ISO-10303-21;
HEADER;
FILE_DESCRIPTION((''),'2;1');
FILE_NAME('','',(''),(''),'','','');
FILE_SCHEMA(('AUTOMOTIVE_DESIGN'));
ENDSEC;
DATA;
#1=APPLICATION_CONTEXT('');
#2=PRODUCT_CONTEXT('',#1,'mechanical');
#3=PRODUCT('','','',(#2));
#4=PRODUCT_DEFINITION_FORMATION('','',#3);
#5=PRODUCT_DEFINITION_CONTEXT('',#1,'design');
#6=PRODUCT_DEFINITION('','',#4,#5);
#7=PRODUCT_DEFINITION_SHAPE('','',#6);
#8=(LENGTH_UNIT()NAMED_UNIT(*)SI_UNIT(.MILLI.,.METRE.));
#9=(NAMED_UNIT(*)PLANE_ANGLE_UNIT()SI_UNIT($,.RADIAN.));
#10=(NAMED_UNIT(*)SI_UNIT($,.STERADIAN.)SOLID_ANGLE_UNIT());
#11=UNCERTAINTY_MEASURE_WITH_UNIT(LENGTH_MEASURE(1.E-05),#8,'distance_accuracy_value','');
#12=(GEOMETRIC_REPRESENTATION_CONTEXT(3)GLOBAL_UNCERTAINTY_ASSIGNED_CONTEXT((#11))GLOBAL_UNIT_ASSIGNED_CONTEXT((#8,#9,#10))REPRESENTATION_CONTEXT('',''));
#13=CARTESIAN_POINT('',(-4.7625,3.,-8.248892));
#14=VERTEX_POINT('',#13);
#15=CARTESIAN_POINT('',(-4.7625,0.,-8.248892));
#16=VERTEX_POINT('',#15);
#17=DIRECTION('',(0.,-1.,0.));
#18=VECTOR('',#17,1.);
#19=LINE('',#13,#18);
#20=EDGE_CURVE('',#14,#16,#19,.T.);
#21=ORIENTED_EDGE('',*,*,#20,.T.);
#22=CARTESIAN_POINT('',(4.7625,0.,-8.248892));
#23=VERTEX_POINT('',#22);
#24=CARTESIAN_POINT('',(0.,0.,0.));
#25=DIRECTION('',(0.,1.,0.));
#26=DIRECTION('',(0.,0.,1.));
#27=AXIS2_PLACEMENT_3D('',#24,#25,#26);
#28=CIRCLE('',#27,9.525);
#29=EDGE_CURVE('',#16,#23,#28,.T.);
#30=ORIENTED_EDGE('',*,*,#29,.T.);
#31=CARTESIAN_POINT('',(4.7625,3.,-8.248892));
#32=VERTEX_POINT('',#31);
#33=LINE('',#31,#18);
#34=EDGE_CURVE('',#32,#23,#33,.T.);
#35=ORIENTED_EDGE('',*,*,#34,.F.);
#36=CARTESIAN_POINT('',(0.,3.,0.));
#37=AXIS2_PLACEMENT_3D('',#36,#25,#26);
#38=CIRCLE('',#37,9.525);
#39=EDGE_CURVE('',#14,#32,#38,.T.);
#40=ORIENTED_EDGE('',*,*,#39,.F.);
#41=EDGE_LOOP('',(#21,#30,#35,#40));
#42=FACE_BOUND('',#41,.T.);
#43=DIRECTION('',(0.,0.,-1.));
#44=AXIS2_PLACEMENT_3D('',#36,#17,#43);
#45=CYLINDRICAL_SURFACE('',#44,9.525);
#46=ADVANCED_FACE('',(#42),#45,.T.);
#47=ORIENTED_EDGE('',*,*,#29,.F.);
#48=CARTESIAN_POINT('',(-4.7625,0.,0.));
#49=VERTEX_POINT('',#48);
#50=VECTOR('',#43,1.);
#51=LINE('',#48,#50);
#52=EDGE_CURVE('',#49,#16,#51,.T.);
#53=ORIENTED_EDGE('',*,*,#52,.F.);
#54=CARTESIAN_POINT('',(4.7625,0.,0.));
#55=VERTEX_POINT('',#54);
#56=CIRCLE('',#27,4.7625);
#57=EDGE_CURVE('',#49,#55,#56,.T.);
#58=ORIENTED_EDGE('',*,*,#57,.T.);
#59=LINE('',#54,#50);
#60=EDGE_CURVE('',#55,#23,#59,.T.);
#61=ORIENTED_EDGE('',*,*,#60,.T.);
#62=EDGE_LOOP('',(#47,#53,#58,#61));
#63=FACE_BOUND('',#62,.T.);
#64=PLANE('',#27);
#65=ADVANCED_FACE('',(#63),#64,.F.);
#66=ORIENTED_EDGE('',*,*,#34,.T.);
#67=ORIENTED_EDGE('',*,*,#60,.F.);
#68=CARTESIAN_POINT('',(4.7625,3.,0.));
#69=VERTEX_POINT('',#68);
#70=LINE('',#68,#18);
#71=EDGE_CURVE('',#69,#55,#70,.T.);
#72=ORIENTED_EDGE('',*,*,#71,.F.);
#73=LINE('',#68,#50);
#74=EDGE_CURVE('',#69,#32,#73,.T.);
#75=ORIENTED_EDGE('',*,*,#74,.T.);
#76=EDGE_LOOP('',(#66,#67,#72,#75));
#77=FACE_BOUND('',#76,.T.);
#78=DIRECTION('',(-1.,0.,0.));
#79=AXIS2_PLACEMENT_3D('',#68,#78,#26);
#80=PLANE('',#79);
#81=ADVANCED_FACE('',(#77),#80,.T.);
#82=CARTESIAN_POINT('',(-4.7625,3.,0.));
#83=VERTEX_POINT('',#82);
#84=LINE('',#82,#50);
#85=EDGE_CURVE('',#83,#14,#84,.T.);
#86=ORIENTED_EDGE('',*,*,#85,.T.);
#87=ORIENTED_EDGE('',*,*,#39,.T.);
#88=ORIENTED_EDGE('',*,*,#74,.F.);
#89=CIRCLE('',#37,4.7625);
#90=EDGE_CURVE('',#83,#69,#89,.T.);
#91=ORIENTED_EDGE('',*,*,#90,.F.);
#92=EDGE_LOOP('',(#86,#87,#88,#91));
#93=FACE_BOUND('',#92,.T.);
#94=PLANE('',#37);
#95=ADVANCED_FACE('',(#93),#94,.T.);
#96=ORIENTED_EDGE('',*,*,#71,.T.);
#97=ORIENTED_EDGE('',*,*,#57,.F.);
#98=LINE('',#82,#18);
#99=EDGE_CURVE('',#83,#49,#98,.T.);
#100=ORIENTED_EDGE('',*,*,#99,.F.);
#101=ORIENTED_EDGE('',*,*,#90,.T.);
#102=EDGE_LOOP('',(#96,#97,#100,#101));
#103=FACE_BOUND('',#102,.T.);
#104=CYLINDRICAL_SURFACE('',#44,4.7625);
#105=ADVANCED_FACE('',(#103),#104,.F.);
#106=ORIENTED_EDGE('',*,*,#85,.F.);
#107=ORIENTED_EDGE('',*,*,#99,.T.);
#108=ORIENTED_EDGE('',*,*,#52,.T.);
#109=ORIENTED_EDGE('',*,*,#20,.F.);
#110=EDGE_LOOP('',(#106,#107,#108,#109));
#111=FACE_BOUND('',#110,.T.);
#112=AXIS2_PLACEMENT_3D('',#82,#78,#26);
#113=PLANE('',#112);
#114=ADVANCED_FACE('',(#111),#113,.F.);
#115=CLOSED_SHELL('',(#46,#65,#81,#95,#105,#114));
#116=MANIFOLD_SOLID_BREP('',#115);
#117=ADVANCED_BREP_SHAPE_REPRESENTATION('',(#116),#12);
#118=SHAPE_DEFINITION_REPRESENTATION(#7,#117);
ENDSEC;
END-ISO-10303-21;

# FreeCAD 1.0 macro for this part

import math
import FreeCAD as App
import Part
import Sketcher
from FreeCAD import Vector
Q = App.Units.Quantity

doc = App.newDocument("Part")
body = doc.addObject("PartDesign::Body", "Body")

# Sketch on XZ plane
sketch1 = body.newObject("Sketcher::SketchObject", "Sketch")
sketch1.AttachmentSupport = (doc.getObject("XZ_Plane"), [""])
sketch1.MapMode = "FlatFace"
sketch1.addGeometry(Part.ArcOfCircle(Part.Circle(Vector(0, 0, 0), Vector(0, 0, 1), 4.8), math.radians(0), math.radians(180)), False)
sketch1.addGeometry(Part.LineSegment(Vector(-4.8, 0, 0), Vector(-4.8, -8.2, 0)), False)
sketch1.addGeometry(Part.ArcOfCircle(Part.Circle(Vector(0, 0, 0), Vector(0, 0, 1), 9.5), math.radians(0), math.radians(240)), False)
sketch1.addGeometry(Part.ArcOfCircle(Part.Circle(Vector(0, 0, 0), Vector(0, 0, 1), 9.5), math.radians(-60), math.radians(0)), False)
sketch1.addGeometry(Part.LineSegment(Vector(4.8, -8.2, 0), Vector(4.8, 0, 0)), False)
sketch1.addConstraint(Sketcher.Constraint("Tangent", 0, 2, 1, 1))
sketch1.addConstraint(Sketcher.Constraint("Coincident", 1, 2, 2, 2))
sketch1.addConstraint(Sketcher.Constraint("Tangent", 2, 1, 3, 2))
sketch1.addConstraint(Sketcher.Constraint("Coincident", 3, 1, 4, 1))
sketch1.addConstraint(Sketcher.Constraint("Tangent", 4, 2, 0, 1))
sketch1.addConstraint(Sketcher.Constraint("Vertical", 1))
sketch1.addConstraint(Sketcher.Constraint("Vertical", 4))
sketch1.addConstraint(Sketcher.Constraint("Coincident", 0, 3, -1, 1))
sketch1.addConstraint(Sketcher.Constraint("Coincident", 2, 3, -1, 1))
sketch1.addConstraint(Sketcher.Constraint("Equal", 2, 3))
sketch1.addConstraint(Sketcher.Constraint("PointOnObject", 2, 1, -1))
sketch1.addConstraint(Sketcher.Constraint("Radius", 0, Q("0.1875 in")))
sketch1.addConstraint(Sketcher.Constraint("Radius", 2, Q("0.375 in")))
pad1 = body.newObject("PartDesign::Pad", "Pad")
pad1.Profile = sketch1
pad1.Length = 3
pad1.Reversed = True

doc.recompute()
